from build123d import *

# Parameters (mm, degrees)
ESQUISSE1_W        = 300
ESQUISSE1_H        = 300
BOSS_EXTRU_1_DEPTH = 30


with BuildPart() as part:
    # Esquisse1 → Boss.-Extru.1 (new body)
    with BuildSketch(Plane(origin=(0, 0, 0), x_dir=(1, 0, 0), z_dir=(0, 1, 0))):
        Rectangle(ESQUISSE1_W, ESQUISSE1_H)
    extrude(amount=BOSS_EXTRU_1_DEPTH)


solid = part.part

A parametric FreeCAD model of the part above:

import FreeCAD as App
import Part
import Sketcher


def add_polygon(sketch, points):
    """Adds a closed chain of lines whose ends are joined by coincident constraints."""
    first, n = sketch.GeometryCount, len(points)
    for a, b in zip(points, points[1:] + points[:1]):
        sketch.addGeometry(Part.LineSegment(App.Vector(*a, 0), App.Vector(*b, 0)), False)
    for i in range(n):
        sketch.addConstraint(Sketcher.Constraint("Coincident", first + i, 2, first + (i + 1) % n, 1))

doc = App.newDocument("Part")
params = doc.addObject("Spreadsheet::Sheet", "Params")
for row, (alias, value) in enumerate([
    ("sketch1_width", "300 mm"),
    ("pad1_length", "30 mm"),
], start=1):
    params.set(f"A{row}", alias)
    params.set(f"B{row}", "=" + value)
    params.setAlias(f"B{row}", alias)

body = doc.addObject("PartDesign::Body", "Body")

sketch1 = body.newObject("Sketcher::SketchObject", "Sketch")
sketch1.AttachmentSupport = (doc.getObject("XZ_Plane"), [""])
sketch1.MapMode = "FlatFace"
add_polygon(sketch1, [(-150, -150), (-150, 150), (150, 150), (150, -150)])
sketch1.addConstraint(Sketcher.Constraint("Vertical", 0))
sketch1.addConstraint(Sketcher.Constraint("Horizontal", 1))
sketch1.addConstraint(Sketcher.Constraint("Vertical", 2))
sketch1.addConstraint(Sketcher.Constraint("Horizontal", 3))
sketch1.addConstraint(Sketcher.Constraint("Symmetric", 0, 2, 2, 2, -1, 1))
sketch1.addConstraint(Sketcher.Constraint("Equal", 3, 0))
sketch1.addConstraint(Sketcher.Constraint("DistanceX", 1, 1, 1, 2, 300.0))
sketch1.setExpression("Constraints[10]", "Params.sketch1_width")
pad1 = body.newObject("PartDesign::Pad", "Pad")
pad1.Profile = sketch1
pad1.setExpression("Length", "Params.pad1_length")
pad1.Reversed = True

doc.recompute()
